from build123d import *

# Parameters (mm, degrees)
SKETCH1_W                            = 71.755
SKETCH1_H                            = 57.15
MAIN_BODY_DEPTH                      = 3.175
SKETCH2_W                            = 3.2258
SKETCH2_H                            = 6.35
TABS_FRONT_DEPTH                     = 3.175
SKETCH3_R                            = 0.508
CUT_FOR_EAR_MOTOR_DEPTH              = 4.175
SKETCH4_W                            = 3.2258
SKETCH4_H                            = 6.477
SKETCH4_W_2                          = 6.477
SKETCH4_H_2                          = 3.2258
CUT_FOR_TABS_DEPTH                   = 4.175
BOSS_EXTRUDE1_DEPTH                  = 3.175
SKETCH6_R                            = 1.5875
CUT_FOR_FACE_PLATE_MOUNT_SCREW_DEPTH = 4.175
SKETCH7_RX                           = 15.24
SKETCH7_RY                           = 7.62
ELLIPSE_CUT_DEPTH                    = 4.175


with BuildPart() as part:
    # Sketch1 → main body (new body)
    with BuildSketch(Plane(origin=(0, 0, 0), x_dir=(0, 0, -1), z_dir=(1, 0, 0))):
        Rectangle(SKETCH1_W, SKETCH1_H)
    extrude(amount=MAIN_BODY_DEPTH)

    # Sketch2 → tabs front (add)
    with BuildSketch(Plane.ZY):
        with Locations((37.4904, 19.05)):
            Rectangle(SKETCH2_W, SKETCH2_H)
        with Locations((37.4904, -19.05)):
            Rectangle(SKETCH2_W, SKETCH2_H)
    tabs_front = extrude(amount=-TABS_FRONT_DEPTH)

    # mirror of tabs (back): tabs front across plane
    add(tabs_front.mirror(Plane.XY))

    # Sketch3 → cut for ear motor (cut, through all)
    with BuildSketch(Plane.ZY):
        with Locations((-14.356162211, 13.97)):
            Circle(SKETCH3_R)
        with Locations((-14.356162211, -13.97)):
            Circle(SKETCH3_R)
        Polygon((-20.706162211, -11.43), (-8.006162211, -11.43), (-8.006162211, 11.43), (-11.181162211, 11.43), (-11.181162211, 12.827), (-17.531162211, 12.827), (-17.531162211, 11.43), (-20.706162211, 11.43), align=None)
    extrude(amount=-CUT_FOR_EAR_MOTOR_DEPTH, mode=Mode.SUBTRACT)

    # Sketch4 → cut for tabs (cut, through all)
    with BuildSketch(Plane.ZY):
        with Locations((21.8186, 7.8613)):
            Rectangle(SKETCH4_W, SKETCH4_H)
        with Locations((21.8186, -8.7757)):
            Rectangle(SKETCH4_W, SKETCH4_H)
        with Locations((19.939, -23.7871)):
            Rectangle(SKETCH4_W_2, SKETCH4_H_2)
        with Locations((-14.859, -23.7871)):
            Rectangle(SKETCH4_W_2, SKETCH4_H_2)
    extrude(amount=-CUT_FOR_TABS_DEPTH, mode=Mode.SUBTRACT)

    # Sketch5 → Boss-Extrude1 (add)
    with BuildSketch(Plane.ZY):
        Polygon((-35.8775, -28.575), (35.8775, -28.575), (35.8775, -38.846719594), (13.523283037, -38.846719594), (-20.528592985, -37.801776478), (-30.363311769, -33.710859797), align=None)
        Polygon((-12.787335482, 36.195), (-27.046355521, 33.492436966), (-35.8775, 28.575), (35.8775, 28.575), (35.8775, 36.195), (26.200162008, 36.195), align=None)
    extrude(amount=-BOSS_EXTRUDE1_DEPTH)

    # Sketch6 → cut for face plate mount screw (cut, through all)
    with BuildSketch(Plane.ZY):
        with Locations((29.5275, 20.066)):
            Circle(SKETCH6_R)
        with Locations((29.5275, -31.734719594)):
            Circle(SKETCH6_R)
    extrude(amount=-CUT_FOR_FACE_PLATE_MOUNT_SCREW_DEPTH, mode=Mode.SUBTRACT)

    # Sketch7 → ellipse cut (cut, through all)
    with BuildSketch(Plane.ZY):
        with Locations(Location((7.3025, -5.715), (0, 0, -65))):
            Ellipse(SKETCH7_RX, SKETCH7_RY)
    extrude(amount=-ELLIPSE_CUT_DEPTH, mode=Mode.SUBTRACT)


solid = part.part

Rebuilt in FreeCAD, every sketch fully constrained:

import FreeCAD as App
import Part
import Sketcher
Q = App.Units.Quantity

doc = App.newDocument("Part")
params = doc.addObject("Spreadsheet::Sheet", "Params")
for row, (alias, value) in enumerate([
    ("sketch1_width", "2.25 in"),
    ("sketch1_height", "2.825 in"),
    ("pad1_length", "0.125 in"),
    ("sketch2_width", "0.25 in"),
    ("sketch2_height", "0.127 in"),
    ("pad2_length", "0.125 in"),
    ("sketch3_diameter", "0.04 in"),
    ("sketch3_width", "0.9 in"),
    ("sketch3_height", "0.5 in"),
    ("sketch3_height2", "0.25 in"),
    ("sketch3_width2", "0.055 in"),
    ("sketch4_width", "0.255 in"),
    ("sketch4_width2", "0.127 in"),
    ("sketch5_width", "0.3 in"),
    ("sketch5_height", "2.825 in"),
    ("pad3_length", "0.125 in"),
    ("sketch6_diameter", "0.125 in"),
], start=1):
    params.set(f"A{row}", alias)
    params.set(f"B{row}", "=" + value)
    params.setAlias(f"B{row}", alias)

body = doc.addObject("PartDesign::Body", "Body")

# Sketch on YZ plane
sketch1 = body.newObject("Sketcher::SketchObject", "Sketch")
sketch1.AttachmentSupport = (doc.getObject("YZ_Plane"), [""])
sketch1.MapMode = "FlatFace"
sketch1.addGeometry([
    Part.LineSegment(App.Vector(28.575, 35.8775, 0), App.Vector(-28.575, 35.8775, 0)),
    Part.LineSegment(App.Vector(-28.575, 35.8775, 0), App.Vector(-28.575, -35.8775, 0)),
    Part.LineSegment(App.Vector(-28.575, -35.8775, 0), App.Vector(28.575, -35.8775, 0)),
    Part.LineSegment(App.Vector(28.575, -35.8775, 0), App.Vector(28.575, 35.8775, 0)),
], False)
sketch1.addConstraint([
    Sketcher.Constraint("Coincident", 0, 2, 1, 1),
    Sketcher.Constraint("Coincident", 1, 2, 2, 1),
    Sketcher.Constraint("Coincident", 2, 2, 3, 1),
    Sketcher.Constraint("Coincident", 3, 2, 0, 1),
    Sketcher.Constraint("Horizontal", 0),
    Sketcher.Constraint("Vertical", 1),
    Sketcher.Constraint("Horizontal", 2),
    Sketcher.Constraint("Vertical", 3),
    Sketcher.Constraint("Symmetric", 0, 2, 2, 2, -1, 1),
    Sketcher.Constraint("DistanceX", 0, 2, 0, 1, Q("2.25 in")),
    Sketcher.Constraint("DistanceY", 1, 2, 1, 1, Q("2.825 in")),
])
sketch1.setExpression("Constraints[9]", "Params.sketch1_width")
sketch1.setExpression("Constraints[10]", "Params.sketch1_height")
pad1 = body.newObject("PartDesign::Pad", "Pad")
pad1.Profile = sketch1
pad1.setExpression("Length", "Params.pad1_length")

# Sketch on YZ plane
sketch2 = body.newObject("Sketcher::SketchObject", "Sketch001")
sketch2.AttachmentSupport = (doc.getObject("YZ_Plane"), [""])
sketch2.MapMode = "FlatFace"
sketch2.addGeometry([
    Part.LineSegment(App.Vector(22.225, 35.8775, 0), App.Vector(15.875, 35.8775, 0)),  # 0
    Part.LineSegment(App.Vector(15.875, 35.8775, 0), App.Vector(15.875, 39.1033, 0)),  # 1
    Part.LineSegment(App.Vector(15.875, 39.1033, 0), App.Vector(22.225, 39.1033, 0)),  # 2
    Part.LineSegment(App.Vector(22.225, 39.1033, 0), App.Vector(22.225, 35.8775, 0)),  # 3
    Part.LineSegment(App.Vector(-15.875, 35.8775, 0), App.Vector(-22.225, 35.8775, 0)),  # 4
    Part.LineSegment(App.Vector(-22.225, 35.8775, 0), App.Vector(-22.225, 39.1033, 0)),  # 5
    Part.LineSegment(App.Vector(-22.225, 39.1033, 0), App.Vector(-15.875, 39.1033, 0)),  # 6
    Part.LineSegment(App.Vector(-15.875, 39.1033, 0), App.Vector(-15.875, 35.8775, 0)),  # 7
], False)
sketch2.addConstraint([
    Sketcher.Constraint("Coincident", 0, 2, 1, 1),
    Sketcher.Constraint("Coincident", 1, 2, 2, 1),
    Sketcher.Constraint("Coincident", 2, 2, 3, 1),
    Sketcher.Constraint("Coincident", 3, 2, 0, 1),
    Sketcher.Constraint("Coincident", 4, 2, 5, 1),
    Sketcher.Constraint("Coincident", 5, 2, 6, 1),
    Sketcher.Constraint("Coincident", 6, 2, 7, 1),
    Sketcher.Constraint("Coincident", 7, 2, 4, 1),
    Sketcher.Constraint("Horizontal", 0),
    Sketcher.Constraint("Vertical", 1),
    Sketcher.Constraint("Horizontal", 2),
    Sketcher.Constraint("Vertical", 3),
    Sketcher.Constraint("Horizontal", 4),
    Sketcher.Constraint("Vertical", 5),
    Sketcher.Constraint("Horizontal", 6),
    Sketcher.Constraint("Vertical", 7),
    Sketcher.Constraint("Symmetric", 3, 2, 4, 2, -2),
    Sketcher.Constraint("Symmetric", 1, 2, 6, 2, -2),
    Sketcher.Constraint("DistanceX", 0, 2, 0, 1, Q("0.25 in")),
    Sketcher.Constraint("DistanceX", 4, 2, 0, 2, Q("1.5 in")),
    Sketcher.Constraint("DistanceY", 1, 1, 1, 2, Q("0.127 in")),
    Sketcher.Constraint("DistanceY", -1, 1, 0, 2, Q("1.4125 in")),
])
sketch2.setExpression("Constraints[18]", "Params.sketch2_width")
sketch2.setExpression("Constraints[20]", "Params.sketch2_height")
pad2 = body.newObject("PartDesign::Pad", "Pad001")
pad2.Profile = sketch2
pad2.setExpression("Length", "Params.pad2_length")
doc.recompute()

mirrored = body.newObject("PartDesign::Mirrored", "Mirrored")
mirrored.Originals = [pad2]
mirrored.MirrorPlane = (doc.getObject("XY_Plane"), [""])
body.Tip = mirrored

# Sketch on YZ plane
sketch3 = body.newObject("Sketcher::SketchObject", "Sketch002")
sketch3.AttachmentSupport = (doc.getObject("YZ_Plane"), [""])
sketch3.MapMode = "FlatFace"
sketch3.addGeometry([
    Part.Circle(App.Vector(13.97, -14.356162, 0), App.Vector(0, 0, 1), 0.508),  # 0
    Part.Circle(App.Vector(-13.97, -14.356162, 0), App.Vector(0, 0, 1), 0.508),  # 1
    Part.LineSegment(App.Vector(-11.43, -20.706162, 0), App.Vector(-11.43, -8.006162, 0)),  # 2
    Part.LineSegment(App.Vector(-11.43, -8.006162, 0), App.Vector(11.43, -8.006162, 0)),  # 3
    Part.LineSegment(App.Vector(11.43, -8.006162, 0), App.Vector(11.43, -11.181162, 0)),  # 4
    Part.LineSegment(App.Vector(11.43, -11.181162, 0), App.Vector(12.827, -11.181162, 0)),  # 5
    Part.LineSegment(App.Vector(12.827, -11.181162, 0), App.Vector(12.827, -17.531162, 0)),  # 6
    Part.LineSegment(App.Vector(12.827, -17.531162, 0), App.Vector(11.43, -17.531162, 0)),  # 7
    Part.LineSegment(App.Vector(11.43, -17.531162, 0), App.Vector(11.43, -20.706162, 0)),  # 8
    Part.LineSegment(App.Vector(11.43, -20.706162, 0), App.Vector(-11.43, -20.706162, 0)),  # 9
], False)
sketch3.addConstraint([
    Sketcher.Constraint("Coincident", 2, 2, 3, 1),
    Sketcher.Constraint("Coincident", 3, 2, 4, 1),
    Sketcher.Constraint("Coincident", 4, 2, 5, 1),
    Sketcher.Constraint("Coincident", 5, 2, 6, 1),
    Sketcher.Constraint("Coincident", 6, 2, 7, 1),
    Sketcher.Constraint("Coincident", 7, 2, 8, 1),
    Sketcher.Constraint("Coincident", 8, 2, 9, 1),
    Sketcher.Constraint("Coincident", 9, 2, 2, 1),
    Sketcher.Constraint("Vertical", 2),
    Sketcher.Constraint("Horizontal", 3),
    Sketcher.Constraint("Vertical", 4),
    Sketcher.Constraint("Horizontal", 5),
    Sketcher.Constraint("Vertical", 6),
    Sketcher.Constraint("Horizontal", 7),
    Sketcher.Constraint("Vertical", 8),
    Sketcher.Constraint("Horizontal", 9),
    Sketcher.Constraint("Equal", 0, 1),
    Sketcher.Constraint("Symmetric", 0, 3, 1, 3, -2),
    Sketcher.Constraint("Vertical", 4, 2, 7, 2),
    Sketcher.Constraint("Equal", 4, 8),
    Sketcher.Constraint("Diameter", 0, Q("0.04 in")),
    Sketcher.Constraint("DistanceX", 3, 1, 3, 2, Q("0.9 in")),
    Sketcher.Constraint("DistanceY", 2, 1, 2, 2, Q("0.5 in")),
    Sketcher.Constraint("DistanceX", 2, 2, 0, 3, Q("1 in")),
    Sketcher.Constraint("DistanceX", 1, 3, 3, 2, Q("1 in")),
    Sketcher.Constraint("DistanceY", 6, 2, 6, 1, Q("0.25 in")),
    Sketcher.Constraint("DistanceX", 5, 1, 5, 2, Q("0.055 in")),
    Sketcher.Constraint("DistanceY", 1, 3, 2, 2, Q("0.25 in")),
    Sketcher.Constraint("DistanceY", 0, 3, -1, 1, 14.356162),
])
sketch3.setExpression("Constraints[20]", "Params.sketch3_diameter")
sketch3.setExpression("Constraints[21]", "Params.sketch3_width")
sketch3.setExpression("Constraints[22]", "Params.sketch3_height")
sketch3.setExpression("Constraints[25]", "Params.sketch3_height2")
sketch3.setExpression("Constraints[26]", "Params.sketch3_width2")
pocket1 = body.newObject("PartDesign::Pocket", "Pocket")
pocket1.Profile = sketch3
pocket1.Type = "ThroughAll"
pocket1.Reversed = True

# Sketch on YZ plane
sketch4 = body.newObject("Sketcher::SketchObject", "Sketch003")
sketch4.AttachmentSupport = (doc.getObject("YZ_Plane"), [""])
sketch4.MapMode = "FlatFace"
sketch4.addGeometry([
    Part.LineSegment(App.Vector(11.0998, 20.2057, 0), App.Vector(4.6228, 20.2057, 0)),  # 0
    Part.LineSegment(App.Vector(4.6228, 20.2057, 0), App.Vector(4.6228, 23.4315, 0)),  # 1
    Part.LineSegment(App.Vector(4.6228, 23.4315, 0), App.Vector(11.0998, 23.4315, 0)),  # 2
    Part.LineSegment(App.Vector(11.0998, 23.4315, 0), App.Vector(11.0998, 20.2057, 0)),  # 3
    Part.LineSegment(App.Vector(-5.5372, 20.2057, 0), App.Vector(-12.0142, 20.2057, 0)),  # 4
    Part.LineSegment(App.Vector(-12.0142, 20.2057, 0), App.Vector(-12.0142, 23.4315, 0)),  # 5
    Part.LineSegment(App.Vector(-12.0142, 23.4315, 0), App.Vector(-5.5372, 23.4315, 0)),  # 6
    Part.LineSegment(App.Vector(-5.5372, 23.4315, 0), App.Vector(-5.5372, 20.2057, 0)),  # 7
    Part.LineSegment(App.Vector(-22.1742, 16.7005, 0), App.Vector(-25.4, 16.7005, 0)),  # 8
    Part.LineSegment(App.Vector(-25.4, 16.7005, 0), App.Vector(-25.4, 23.1775, 0)),  # 9
    Part.LineSegment(App.Vector(-25.4, 23.1775, 0), App.Vector(-22.1742, 23.1775, 0)),  # 10
    Part.LineSegment(App.Vector(-22.1742, 23.1775, 0), App.Vector(-22.1742, 16.7005, 0)),  # 11
    Part.LineSegment(App.Vector(-22.1742, -18.0975, 0), App.Vector(-25.4, -18.0975, 0)),  # 12
    Part.LineSegment(App.Vector(-25.4, -18.0975, 0), App.Vector(-25.4, -11.6205, 0)),  # 13
    Part.LineSegment(App.Vector(-25.4, -11.6205, 0), App.Vector(-22.1742, -11.6205, 0)),  # 14
    Part.LineSegment(App.Vector(-22.1742, -11.6205, 0), App.Vector(-22.1742, -18.0975, 0)),  # 15
], False)
sketch4.addConstraint([
    Sketcher.Constraint("Coincident", 0, 2, 1, 1),
    Sketcher.Constraint("Coincident", 1, 2, 2, 1),
    Sketcher.Constraint("Coincident", 2, 2, 3, 1),
    Sketcher.Constraint("Coincident", 3, 2, 0, 1),
    Sketcher.Constraint("Coincident", 4, 2, 5, 1),
    Sketcher.Constraint("Coincident", 5, 2, 6, 1),
    Sketcher.Constraint("Coincident", 6, 2, 7, 1),
    Sketcher.Constraint("Coincident", 7, 2, 4, 1),
    Sketcher.Constraint("Coincident", 8, 2, 9, 1),
    Sketcher.Constraint("Coincident", 9, 2, 10, 1),
    Sketcher.Constraint("Coincident", 10, 2, 11, 1),
    Sketcher.Constraint("Coincident", 11, 2, 8, 1),
    Sketcher.Constraint("Coincident", 12, 2, 13, 1),
    Sketcher.Constraint("Coincident", 13, 2, 14, 1),
    Sketcher.Constraint("Coincident", 14, 2, 15, 1),
    Sketcher.Constraint("Coincident", 15, 2, 12, 1),
    Sketcher.Constraint("Horizontal", 0),
    Sketcher.Constraint("Vertical", 1),
    Sketcher.Constraint("Horizontal", 2),
    Sketcher.Constraint("Vertical", 3),
    Sketcher.Constraint("Horizontal", 4),
    Sketcher.Constraint("Vertical", 5),
    Sketcher.Constraint("Horizontal", 6),
    Sketcher.Constraint("Vertical", 7),
    Sketcher.Constraint("Horizontal", 8),
    Sketcher.Constraint("Vertical", 9),
    Sketcher.Constraint("Horizontal", 10),
    Sketcher.Constraint("Vertical", 11),
    Sketcher.Constraint("Horizontal", 12),
    Sketcher.Constraint("Vertical", 13),
    Sketcher.Constraint("Horizontal", 14),
    Sketcher.Constraint("Vertical", 15),
    Sketcher.Constraint("Horizontal", 3, 2, 4, 2),
    Sketcher.Constraint("Horizontal", 2, 2, 5, 2),
    Sketcher.Constraint("Vertical", 9, 2, 12, 2),
    Sketcher.Constraint("Vertical", 11, 2, 14, 2),
    Sketcher.Constraint("Equal", 2, 4),
    Sketcher.Constraint("Equal", 14, 1),
    Sketcher.Constraint("Equal", 6, 9),
    Sketcher.Constraint("Equal", 11, 13),
    Sketcher.Constraint("DistanceX", 8, 2, -1, 1, Q("1 in")),
    Sketcher.Constraint("DistanceX", 6, 2, 1, 2, Q("0.4 in")),
    Sketcher.Constraint("DistanceX", 10, 2, 5, 2, Q("0.4 in")),
    Sketcher.Constraint("DistanceX", 0, 2, 0, 1, Q("0.255 in")),
    Sketcher.Constraint("DistanceX", 8, 2, 8, 1, Q("0.127 in")),
    Sketcher.Constraint("DistanceY", 9, 2, 5, 2, Q("0.01 in")),
    Sketcher.Constraint("DistanceY", 12, 2, 8, 2, Q("1.37 in")),
    Sketcher.Constraint("DistanceY", -1, 1, 0, 2, Q("0.7955 in")),
])
sketch4.setExpression("Constraints[43]", "Params.sketch4_width")
sketch4.setExpression("Constraints[44]", "Params.sketch4_width2")
pocket2 = body.newObject("PartDesign::Pocket", "Pocket001")
pocket2.Profile = sketch4
pocket2.Type = "ThroughAll"
pocket2.Reversed = True

# Sketch on YZ plane
sketch5 = body.newObject("Sketcher::SketchObject", "Sketch004")
sketch5.AttachmentSupport = (doc.getObject("YZ_Plane"), [""])
sketch5.MapMode = "FlatFace"
sketch5.addGeometry([
    Part.LineSegment(App.Vector(-28.575, 35.8775, 0), App.Vector(-28.575, -35.8775, 0)),  # 0
    Part.LineSegment(App.Vector(-28.575, -35.8775, 0), App.Vector(-33.71086, -30.363312, 0)),  # 1
    Part.LineSegment(App.Vector(-33.71086, -30.363312, 0), App.Vector(-37.801776, -20.528593, 0)),  # 2
    Part.LineSegment(App.Vector(-37.801776, -20.528593, 0), App.Vector(-38.84672, 13.523283, 0)),  # 3
    Part.LineSegment(App.Vector(-38.84672, 13.523283, 0), App.Vector(-38.84672, 35.8775, 0)),  # 4
    Part.LineSegment(App.Vector(-38.84672, 35.8775, 0), App.Vector(-28.575, 35.8775, 0)),  # 5
    Part.LineSegment(App.Vector(36.195, -12.787335, 0), App.Vector(33.492437, -27.046356, 0)),  # 6
    Part.LineSegment(App.Vector(33.492437, -27.046356, 0), App.Vector(28.575, -35.8775, 0)),  # 7
    Part.LineSegment(App.Vector(28.575, -35.8775, 0), App.Vector(28.575, 35.8775, 0)),  # 8
    Part.LineSegment(App.Vector(28.575, 35.8775, 0), App.Vector(36.195, 35.8775, 0)),  # 9
    Part.LineSegment(App.Vector(36.195, 35.8775, 0), App.Vector(36.195, -12.787335, 0)),  # 10
], False)
sketch5.addConstraint([
    Sketcher.Constraint("Coincident", 0, 2, 1, 1),
    Sketcher.Constraint("Coincident", 1, 2, 2, 1),
    Sketcher.Constraint("Coincident", 2, 2, 3, 1),
    Sketcher.Constraint("Coincident", 3, 2, 4, 1),
    Sketcher.Constraint("Coincident", 4, 2, 5, 1),
    Sketcher.Constraint("Coincident", 5, 2, 0, 1),
    Sketcher.Constraint("Coincident", 6, 2, 7, 1),
    Sketcher.Constraint("Coincident", 7, 2, 8, 1),
    Sketcher.Constraint("Coincident", 8, 2, 9, 1),
    Sketcher.Constraint("Coincident", 9, 2, 10, 1),
    Sketcher.Constraint("Coincident", 10, 2, 6, 1),
    Sketcher.Constraint("Vertical", 0),
    Sketcher.Constraint("Vertical", 4),
    Sketcher.Constraint("Horizontal", 5),
    Sketcher.Constraint("Vertical", 8),
    Sketcher.Constraint("Horizontal", 9),
    Sketcher.Constraint("Vertical", 10),
    Sketcher.Constraint("Symmetric", 5, 2, 7, 2, -1, 1),
    Sketcher.Constraint("Horizontal", 0, 2, 7, 2),
    Sketcher.Constraint("Horizontal", 5, 2, 8, 2),
    Sketcher.Constraint("DistanceX", 9, 1, 9, 2, Q("0.3 in")),
    Sketcher.Constraint("DistanceY", 0, 2, 0, 1, Q("2.825 in")),
    Sketcher.Constraint("DistanceX", 0, 2, 7, 2, Q("2.25 in")),
    Sketcher.Constraint("DistanceX", -1, 1, 6, 2, Q("1.3185999 in")),
    Sketcher.Constraint("DistanceX", 5, 1, 5, 2, 10.27172),
    Sketcher.Constraint("Distance", 1, 7.535471),
    Sketcher.Constraint("DistanceY", 4, 1, 4, 2, 22.354217),
    Sketcher.Constraint("DistanceY", 10, 2, 10, 1, 48.664835),
    Sketcher.Constraint("DistanceX", 1, 2, -1, 1, 33.71086),
    Sketcher.Constraint("DistanceY", 1, 2, 2, 2, 9.834719),
    Sketcher.Constraint("DistanceY", 6, 2, 3, 2, 40.569639),
    Sketcher.Constraint("Distance", 2, 10.651633),
])
sketch5.setExpression("Constraints[20]", "Params.sketch5_width")
sketch5.setExpression("Constraints[21]", "Params.sketch5_height")
pad3 = body.newObject("PartDesign::Pad", "Pad002")
pad3.Profile = sketch5
pad3.setExpression("Length", "Params.pad3_length")

# Sketch on YZ plane
sketch6 = body.newObject("Sketcher::SketchObject", "Sketch005")
sketch6.AttachmentSupport = (doc.getObject("YZ_Plane"), [""])
sketch6.MapMode = "FlatFace"
sketch6.addGeometry([
    Part.Circle(App.Vector(20.066, 29.5275, 0), App.Vector(0, 0, 1), 1.5875),
    Part.Circle(App.Vector(-31.73472, 29.5275, 0), App.Vector(0, 0, 1), 1.5875),
], False)
sketch6.addConstraint([
    Sketcher.Constraint("Equal", 0, 1),
    Sketcher.Constraint("Horizontal", 0, 3, 1, 3),
    Sketcher.Constraint("Diameter", 0, Q("0.125 in")),
    Sketcher.Constraint("DistanceX", -1, 1, 0, 3, Q("0.79 in")),
    Sketcher.Constraint("DistanceY", -1, 1, 0, 3, Q("1.1625 in")),
    Sketcher.Constraint("DistanceX", 1, 3, -1, 1, 31.73472),
])
sketch6.setExpression("Constraints[2]", "Params.sketch6_diameter")
pocket3 = body.newObject("PartDesign::Pocket", "Pocket002")
pocket3.Profile = sketch6
pocket3.Type = "ThroughAll"
pocket3.Reversed = True

# Sketch on YZ plane
sketch7 = body.newObject("Sketcher::SketchObject", "Sketch006")
sketch7.AttachmentSupport = (doc.getObject("YZ_Plane"), [""])
sketch7.MapMode = "FlatFace"
sketch7.addGeometry(Part.Ellipse(App.Vector(-19.527131, 13.743202, 0), App.Vector(-8.935351, 0.396435, 0), App.Vector(-5.715, 7.3025, 0)), False)
sketch7.addConstraint(Sketcher.Constraint("Block", 0))
pocket4 = body.newObject("PartDesign::Pocket", "Pocket003")
pocket4.Profile = sketch7
pocket4.Type = "ThroughAll"
pocket4.Reversed = True

doc.recompute()
